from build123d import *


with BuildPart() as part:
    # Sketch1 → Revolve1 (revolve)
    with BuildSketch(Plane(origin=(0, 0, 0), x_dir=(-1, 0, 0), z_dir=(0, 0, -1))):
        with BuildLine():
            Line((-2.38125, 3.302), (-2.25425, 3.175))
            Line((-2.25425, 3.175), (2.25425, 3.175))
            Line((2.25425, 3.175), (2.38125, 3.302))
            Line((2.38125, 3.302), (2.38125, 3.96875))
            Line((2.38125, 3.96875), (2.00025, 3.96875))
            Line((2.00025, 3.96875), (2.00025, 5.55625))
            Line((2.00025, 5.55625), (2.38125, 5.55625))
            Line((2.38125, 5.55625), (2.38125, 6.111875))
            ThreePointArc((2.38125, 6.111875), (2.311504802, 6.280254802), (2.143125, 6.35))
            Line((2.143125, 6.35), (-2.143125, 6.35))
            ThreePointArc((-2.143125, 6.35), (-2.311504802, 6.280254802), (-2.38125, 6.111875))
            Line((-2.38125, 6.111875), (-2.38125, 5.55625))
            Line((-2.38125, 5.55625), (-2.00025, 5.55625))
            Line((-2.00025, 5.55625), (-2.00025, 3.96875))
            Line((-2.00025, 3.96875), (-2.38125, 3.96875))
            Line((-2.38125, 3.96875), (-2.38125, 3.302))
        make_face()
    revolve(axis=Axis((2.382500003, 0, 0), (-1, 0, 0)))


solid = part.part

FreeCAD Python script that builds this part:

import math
import FreeCAD as App
import Part
import Sketcher

V = App.Vector
Q = App.Units.Quantity

doc = App.newDocument("Part")
body = doc.addObject("PartDesign::Body", "Body")

# Sketch on XY plane
sketch1 = body.newObject("Sketcher::SketchObject", "Sketch")
sketch1.AttachmentSupport = (doc.getObject("XY_Plane"), [""])
sketch1.MapMode = "FlatFace"
sketch1.addGeometry([
    Part.LineSegment(V(2.38, 3.3, 0), V(2.25, 3.17, 0)),  # 0
    Part.LineSegment(V(2.25, 3.17, 0), V(-2.25, 3.17, 0)),  # 1
    Part.LineSegment(V(-2.25, 3.17, 0), V(-2.38, 3.3, 0)),  # 2
    Part.LineSegment(V(-2.38, 3.3, 0), V(-2.38, 3.97, 0)),  # 3
    Part.LineSegment(V(-2.38, 3.97, 0), V(-2, 3.97, 0)),  # 4
    Part.LineSegment(V(-2, 3.97, 0), V(-2, 5.56, 0)),  # 5
    Part.LineSegment(V(-2, 5.56, 0), V(-2.38, 5.56, 0)),  # 6
    Part.LineSegment(V(-2.38, 5.56, 0), V(-2.38, 6.11, 0)),  # 7
    Part.ArcOfCircle(Part.Circle(V(-2.14, 6.11, 0), V(0, 0, 1), 0.24), math.radians(90), math.radians(180)),  # 8
    Part.LineSegment(V(-2.14, 6.35, 0), V(2.14, 6.35, 0)),  # 9
    Part.ArcOfCircle(Part.Circle(V(2.14, 6.11, 0), V(0, 0, 1), 0.24), math.radians(0), math.radians(90)),  # 10
    Part.LineSegment(V(2.38, 6.11, 0), V(2.38, 5.56, 0)),  # 11
    Part.LineSegment(V(2.38, 5.56, 0), V(2, 5.56, 0)),  # 12
    Part.LineSegment(V(2, 5.56, 0), V(2, 3.97, 0)),  # 13
    Part.LineSegment(V(2, 3.97, 0), V(2.38, 3.97, 0)),  # 14
    Part.LineSegment(V(2.38, 3.97, 0), V(2.38, 3.3, 0)),  # 15
], False)
sketch1.addConstraint([
    Sketcher.Constraint("Coincident", 0, 2, 1, 1),
    Sketcher.Constraint("Coincident", 1, 2, 2, 1),
    Sketcher.Constraint("Coincident", 2, 2, 3, 1),
    Sketcher.Constraint("Coincident", 3, 2, 4, 1),
    Sketcher.Constraint("Coincident", 4, 2, 5, 1),
    Sketcher.Constraint("Coincident", 5, 2, 6, 1),
    Sketcher.Constraint("Coincident", 6, 2, 7, 1),
    Sketcher.Constraint("Tangent", 7, 2, 8, 2),
    Sketcher.Constraint("Tangent", 8, 1, 9, 1),
    Sketcher.Constraint("Tangent", 9, 2, 10, 2),
    Sketcher.Constraint("Tangent", 10, 1, 11, 1),
    Sketcher.Constraint("Coincident", 11, 2, 12, 1),
    Sketcher.Constraint("Coincident", 12, 2, 13, 1),
    Sketcher.Constraint("Coincident", 13, 2, 14, 1),
    Sketcher.Constraint("Coincident", 14, 2, 15, 1),
    Sketcher.Constraint("Coincident", 15, 2, 0, 1),
    Sketcher.Constraint("Horizontal", 1),
    Sketcher.Constraint("Vertical", 3),
    Sketcher.Constraint("Horizontal", 4),
    Sketcher.Constraint("Vertical", 5),
    Sketcher.Constraint("Horizontal", 6),
    Sketcher.Constraint("Vertical", 7),
    Sketcher.Constraint("Horizontal", 9),
    Sketcher.Constraint("Vertical", 11),
    Sketcher.Constraint("Horizontal", 12),
    Sketcher.Constraint("Vertical", 13),
    Sketcher.Constraint("Horizontal", 14),
    Sketcher.Constraint("Vertical", 15),
    Sketcher.Constraint("Equal", 8, 10),
    Sketcher.Constraint("Symmetric", 6, 2, 11, 2, -2),
    Sketcher.Constraint("Symmetric", 4, 2, 13, 2, -2),
    Sketcher.Constraint("Symmetric", 2, 2, 15, 2, -2),
    Sketcher.Constraint("Perpendicular", 0, 2),
    Sketcher.Constraint("Vertical", 3, 2, 6, 2),
    Sketcher.Constraint("Equal", 0, 2),
    Sketcher.Constraint("DistanceX", 4, 1, 4, 2, Q("0.015 in")),
    Sketcher.Constraint("DistanceY", 5, 1, 5, 2, Q("0.0625 in")),
    Sketcher.Constraint("DistanceY", -1, 1, 2, 2, Q("0.13 in")),
    Sketcher.Constraint("DistanceY", -1, 1, 8, 1, Q("0.25 in")),
    Sketcher.Constraint("DistanceX", 1, 2, 4, 2, Q("0.01 in")),
    Sketcher.Constraint("DistanceX", 1, 2, 1, 1, Q("0.1775 in")),
    Sketcher.Constraint("DistanceY", -1, 1, 3, 2, Q("0.15625 in")),
    Sketcher.Constraint("Radius", 8, 0.238125),
])
revolution = body.newObject("PartDesign::Revolution", "Revolution")
revolution.Profile = sketch1
revolution.ReferenceAxis = (sketch1, ["H_Axis"])
revolution.Angle = 360

doc.recompute()
